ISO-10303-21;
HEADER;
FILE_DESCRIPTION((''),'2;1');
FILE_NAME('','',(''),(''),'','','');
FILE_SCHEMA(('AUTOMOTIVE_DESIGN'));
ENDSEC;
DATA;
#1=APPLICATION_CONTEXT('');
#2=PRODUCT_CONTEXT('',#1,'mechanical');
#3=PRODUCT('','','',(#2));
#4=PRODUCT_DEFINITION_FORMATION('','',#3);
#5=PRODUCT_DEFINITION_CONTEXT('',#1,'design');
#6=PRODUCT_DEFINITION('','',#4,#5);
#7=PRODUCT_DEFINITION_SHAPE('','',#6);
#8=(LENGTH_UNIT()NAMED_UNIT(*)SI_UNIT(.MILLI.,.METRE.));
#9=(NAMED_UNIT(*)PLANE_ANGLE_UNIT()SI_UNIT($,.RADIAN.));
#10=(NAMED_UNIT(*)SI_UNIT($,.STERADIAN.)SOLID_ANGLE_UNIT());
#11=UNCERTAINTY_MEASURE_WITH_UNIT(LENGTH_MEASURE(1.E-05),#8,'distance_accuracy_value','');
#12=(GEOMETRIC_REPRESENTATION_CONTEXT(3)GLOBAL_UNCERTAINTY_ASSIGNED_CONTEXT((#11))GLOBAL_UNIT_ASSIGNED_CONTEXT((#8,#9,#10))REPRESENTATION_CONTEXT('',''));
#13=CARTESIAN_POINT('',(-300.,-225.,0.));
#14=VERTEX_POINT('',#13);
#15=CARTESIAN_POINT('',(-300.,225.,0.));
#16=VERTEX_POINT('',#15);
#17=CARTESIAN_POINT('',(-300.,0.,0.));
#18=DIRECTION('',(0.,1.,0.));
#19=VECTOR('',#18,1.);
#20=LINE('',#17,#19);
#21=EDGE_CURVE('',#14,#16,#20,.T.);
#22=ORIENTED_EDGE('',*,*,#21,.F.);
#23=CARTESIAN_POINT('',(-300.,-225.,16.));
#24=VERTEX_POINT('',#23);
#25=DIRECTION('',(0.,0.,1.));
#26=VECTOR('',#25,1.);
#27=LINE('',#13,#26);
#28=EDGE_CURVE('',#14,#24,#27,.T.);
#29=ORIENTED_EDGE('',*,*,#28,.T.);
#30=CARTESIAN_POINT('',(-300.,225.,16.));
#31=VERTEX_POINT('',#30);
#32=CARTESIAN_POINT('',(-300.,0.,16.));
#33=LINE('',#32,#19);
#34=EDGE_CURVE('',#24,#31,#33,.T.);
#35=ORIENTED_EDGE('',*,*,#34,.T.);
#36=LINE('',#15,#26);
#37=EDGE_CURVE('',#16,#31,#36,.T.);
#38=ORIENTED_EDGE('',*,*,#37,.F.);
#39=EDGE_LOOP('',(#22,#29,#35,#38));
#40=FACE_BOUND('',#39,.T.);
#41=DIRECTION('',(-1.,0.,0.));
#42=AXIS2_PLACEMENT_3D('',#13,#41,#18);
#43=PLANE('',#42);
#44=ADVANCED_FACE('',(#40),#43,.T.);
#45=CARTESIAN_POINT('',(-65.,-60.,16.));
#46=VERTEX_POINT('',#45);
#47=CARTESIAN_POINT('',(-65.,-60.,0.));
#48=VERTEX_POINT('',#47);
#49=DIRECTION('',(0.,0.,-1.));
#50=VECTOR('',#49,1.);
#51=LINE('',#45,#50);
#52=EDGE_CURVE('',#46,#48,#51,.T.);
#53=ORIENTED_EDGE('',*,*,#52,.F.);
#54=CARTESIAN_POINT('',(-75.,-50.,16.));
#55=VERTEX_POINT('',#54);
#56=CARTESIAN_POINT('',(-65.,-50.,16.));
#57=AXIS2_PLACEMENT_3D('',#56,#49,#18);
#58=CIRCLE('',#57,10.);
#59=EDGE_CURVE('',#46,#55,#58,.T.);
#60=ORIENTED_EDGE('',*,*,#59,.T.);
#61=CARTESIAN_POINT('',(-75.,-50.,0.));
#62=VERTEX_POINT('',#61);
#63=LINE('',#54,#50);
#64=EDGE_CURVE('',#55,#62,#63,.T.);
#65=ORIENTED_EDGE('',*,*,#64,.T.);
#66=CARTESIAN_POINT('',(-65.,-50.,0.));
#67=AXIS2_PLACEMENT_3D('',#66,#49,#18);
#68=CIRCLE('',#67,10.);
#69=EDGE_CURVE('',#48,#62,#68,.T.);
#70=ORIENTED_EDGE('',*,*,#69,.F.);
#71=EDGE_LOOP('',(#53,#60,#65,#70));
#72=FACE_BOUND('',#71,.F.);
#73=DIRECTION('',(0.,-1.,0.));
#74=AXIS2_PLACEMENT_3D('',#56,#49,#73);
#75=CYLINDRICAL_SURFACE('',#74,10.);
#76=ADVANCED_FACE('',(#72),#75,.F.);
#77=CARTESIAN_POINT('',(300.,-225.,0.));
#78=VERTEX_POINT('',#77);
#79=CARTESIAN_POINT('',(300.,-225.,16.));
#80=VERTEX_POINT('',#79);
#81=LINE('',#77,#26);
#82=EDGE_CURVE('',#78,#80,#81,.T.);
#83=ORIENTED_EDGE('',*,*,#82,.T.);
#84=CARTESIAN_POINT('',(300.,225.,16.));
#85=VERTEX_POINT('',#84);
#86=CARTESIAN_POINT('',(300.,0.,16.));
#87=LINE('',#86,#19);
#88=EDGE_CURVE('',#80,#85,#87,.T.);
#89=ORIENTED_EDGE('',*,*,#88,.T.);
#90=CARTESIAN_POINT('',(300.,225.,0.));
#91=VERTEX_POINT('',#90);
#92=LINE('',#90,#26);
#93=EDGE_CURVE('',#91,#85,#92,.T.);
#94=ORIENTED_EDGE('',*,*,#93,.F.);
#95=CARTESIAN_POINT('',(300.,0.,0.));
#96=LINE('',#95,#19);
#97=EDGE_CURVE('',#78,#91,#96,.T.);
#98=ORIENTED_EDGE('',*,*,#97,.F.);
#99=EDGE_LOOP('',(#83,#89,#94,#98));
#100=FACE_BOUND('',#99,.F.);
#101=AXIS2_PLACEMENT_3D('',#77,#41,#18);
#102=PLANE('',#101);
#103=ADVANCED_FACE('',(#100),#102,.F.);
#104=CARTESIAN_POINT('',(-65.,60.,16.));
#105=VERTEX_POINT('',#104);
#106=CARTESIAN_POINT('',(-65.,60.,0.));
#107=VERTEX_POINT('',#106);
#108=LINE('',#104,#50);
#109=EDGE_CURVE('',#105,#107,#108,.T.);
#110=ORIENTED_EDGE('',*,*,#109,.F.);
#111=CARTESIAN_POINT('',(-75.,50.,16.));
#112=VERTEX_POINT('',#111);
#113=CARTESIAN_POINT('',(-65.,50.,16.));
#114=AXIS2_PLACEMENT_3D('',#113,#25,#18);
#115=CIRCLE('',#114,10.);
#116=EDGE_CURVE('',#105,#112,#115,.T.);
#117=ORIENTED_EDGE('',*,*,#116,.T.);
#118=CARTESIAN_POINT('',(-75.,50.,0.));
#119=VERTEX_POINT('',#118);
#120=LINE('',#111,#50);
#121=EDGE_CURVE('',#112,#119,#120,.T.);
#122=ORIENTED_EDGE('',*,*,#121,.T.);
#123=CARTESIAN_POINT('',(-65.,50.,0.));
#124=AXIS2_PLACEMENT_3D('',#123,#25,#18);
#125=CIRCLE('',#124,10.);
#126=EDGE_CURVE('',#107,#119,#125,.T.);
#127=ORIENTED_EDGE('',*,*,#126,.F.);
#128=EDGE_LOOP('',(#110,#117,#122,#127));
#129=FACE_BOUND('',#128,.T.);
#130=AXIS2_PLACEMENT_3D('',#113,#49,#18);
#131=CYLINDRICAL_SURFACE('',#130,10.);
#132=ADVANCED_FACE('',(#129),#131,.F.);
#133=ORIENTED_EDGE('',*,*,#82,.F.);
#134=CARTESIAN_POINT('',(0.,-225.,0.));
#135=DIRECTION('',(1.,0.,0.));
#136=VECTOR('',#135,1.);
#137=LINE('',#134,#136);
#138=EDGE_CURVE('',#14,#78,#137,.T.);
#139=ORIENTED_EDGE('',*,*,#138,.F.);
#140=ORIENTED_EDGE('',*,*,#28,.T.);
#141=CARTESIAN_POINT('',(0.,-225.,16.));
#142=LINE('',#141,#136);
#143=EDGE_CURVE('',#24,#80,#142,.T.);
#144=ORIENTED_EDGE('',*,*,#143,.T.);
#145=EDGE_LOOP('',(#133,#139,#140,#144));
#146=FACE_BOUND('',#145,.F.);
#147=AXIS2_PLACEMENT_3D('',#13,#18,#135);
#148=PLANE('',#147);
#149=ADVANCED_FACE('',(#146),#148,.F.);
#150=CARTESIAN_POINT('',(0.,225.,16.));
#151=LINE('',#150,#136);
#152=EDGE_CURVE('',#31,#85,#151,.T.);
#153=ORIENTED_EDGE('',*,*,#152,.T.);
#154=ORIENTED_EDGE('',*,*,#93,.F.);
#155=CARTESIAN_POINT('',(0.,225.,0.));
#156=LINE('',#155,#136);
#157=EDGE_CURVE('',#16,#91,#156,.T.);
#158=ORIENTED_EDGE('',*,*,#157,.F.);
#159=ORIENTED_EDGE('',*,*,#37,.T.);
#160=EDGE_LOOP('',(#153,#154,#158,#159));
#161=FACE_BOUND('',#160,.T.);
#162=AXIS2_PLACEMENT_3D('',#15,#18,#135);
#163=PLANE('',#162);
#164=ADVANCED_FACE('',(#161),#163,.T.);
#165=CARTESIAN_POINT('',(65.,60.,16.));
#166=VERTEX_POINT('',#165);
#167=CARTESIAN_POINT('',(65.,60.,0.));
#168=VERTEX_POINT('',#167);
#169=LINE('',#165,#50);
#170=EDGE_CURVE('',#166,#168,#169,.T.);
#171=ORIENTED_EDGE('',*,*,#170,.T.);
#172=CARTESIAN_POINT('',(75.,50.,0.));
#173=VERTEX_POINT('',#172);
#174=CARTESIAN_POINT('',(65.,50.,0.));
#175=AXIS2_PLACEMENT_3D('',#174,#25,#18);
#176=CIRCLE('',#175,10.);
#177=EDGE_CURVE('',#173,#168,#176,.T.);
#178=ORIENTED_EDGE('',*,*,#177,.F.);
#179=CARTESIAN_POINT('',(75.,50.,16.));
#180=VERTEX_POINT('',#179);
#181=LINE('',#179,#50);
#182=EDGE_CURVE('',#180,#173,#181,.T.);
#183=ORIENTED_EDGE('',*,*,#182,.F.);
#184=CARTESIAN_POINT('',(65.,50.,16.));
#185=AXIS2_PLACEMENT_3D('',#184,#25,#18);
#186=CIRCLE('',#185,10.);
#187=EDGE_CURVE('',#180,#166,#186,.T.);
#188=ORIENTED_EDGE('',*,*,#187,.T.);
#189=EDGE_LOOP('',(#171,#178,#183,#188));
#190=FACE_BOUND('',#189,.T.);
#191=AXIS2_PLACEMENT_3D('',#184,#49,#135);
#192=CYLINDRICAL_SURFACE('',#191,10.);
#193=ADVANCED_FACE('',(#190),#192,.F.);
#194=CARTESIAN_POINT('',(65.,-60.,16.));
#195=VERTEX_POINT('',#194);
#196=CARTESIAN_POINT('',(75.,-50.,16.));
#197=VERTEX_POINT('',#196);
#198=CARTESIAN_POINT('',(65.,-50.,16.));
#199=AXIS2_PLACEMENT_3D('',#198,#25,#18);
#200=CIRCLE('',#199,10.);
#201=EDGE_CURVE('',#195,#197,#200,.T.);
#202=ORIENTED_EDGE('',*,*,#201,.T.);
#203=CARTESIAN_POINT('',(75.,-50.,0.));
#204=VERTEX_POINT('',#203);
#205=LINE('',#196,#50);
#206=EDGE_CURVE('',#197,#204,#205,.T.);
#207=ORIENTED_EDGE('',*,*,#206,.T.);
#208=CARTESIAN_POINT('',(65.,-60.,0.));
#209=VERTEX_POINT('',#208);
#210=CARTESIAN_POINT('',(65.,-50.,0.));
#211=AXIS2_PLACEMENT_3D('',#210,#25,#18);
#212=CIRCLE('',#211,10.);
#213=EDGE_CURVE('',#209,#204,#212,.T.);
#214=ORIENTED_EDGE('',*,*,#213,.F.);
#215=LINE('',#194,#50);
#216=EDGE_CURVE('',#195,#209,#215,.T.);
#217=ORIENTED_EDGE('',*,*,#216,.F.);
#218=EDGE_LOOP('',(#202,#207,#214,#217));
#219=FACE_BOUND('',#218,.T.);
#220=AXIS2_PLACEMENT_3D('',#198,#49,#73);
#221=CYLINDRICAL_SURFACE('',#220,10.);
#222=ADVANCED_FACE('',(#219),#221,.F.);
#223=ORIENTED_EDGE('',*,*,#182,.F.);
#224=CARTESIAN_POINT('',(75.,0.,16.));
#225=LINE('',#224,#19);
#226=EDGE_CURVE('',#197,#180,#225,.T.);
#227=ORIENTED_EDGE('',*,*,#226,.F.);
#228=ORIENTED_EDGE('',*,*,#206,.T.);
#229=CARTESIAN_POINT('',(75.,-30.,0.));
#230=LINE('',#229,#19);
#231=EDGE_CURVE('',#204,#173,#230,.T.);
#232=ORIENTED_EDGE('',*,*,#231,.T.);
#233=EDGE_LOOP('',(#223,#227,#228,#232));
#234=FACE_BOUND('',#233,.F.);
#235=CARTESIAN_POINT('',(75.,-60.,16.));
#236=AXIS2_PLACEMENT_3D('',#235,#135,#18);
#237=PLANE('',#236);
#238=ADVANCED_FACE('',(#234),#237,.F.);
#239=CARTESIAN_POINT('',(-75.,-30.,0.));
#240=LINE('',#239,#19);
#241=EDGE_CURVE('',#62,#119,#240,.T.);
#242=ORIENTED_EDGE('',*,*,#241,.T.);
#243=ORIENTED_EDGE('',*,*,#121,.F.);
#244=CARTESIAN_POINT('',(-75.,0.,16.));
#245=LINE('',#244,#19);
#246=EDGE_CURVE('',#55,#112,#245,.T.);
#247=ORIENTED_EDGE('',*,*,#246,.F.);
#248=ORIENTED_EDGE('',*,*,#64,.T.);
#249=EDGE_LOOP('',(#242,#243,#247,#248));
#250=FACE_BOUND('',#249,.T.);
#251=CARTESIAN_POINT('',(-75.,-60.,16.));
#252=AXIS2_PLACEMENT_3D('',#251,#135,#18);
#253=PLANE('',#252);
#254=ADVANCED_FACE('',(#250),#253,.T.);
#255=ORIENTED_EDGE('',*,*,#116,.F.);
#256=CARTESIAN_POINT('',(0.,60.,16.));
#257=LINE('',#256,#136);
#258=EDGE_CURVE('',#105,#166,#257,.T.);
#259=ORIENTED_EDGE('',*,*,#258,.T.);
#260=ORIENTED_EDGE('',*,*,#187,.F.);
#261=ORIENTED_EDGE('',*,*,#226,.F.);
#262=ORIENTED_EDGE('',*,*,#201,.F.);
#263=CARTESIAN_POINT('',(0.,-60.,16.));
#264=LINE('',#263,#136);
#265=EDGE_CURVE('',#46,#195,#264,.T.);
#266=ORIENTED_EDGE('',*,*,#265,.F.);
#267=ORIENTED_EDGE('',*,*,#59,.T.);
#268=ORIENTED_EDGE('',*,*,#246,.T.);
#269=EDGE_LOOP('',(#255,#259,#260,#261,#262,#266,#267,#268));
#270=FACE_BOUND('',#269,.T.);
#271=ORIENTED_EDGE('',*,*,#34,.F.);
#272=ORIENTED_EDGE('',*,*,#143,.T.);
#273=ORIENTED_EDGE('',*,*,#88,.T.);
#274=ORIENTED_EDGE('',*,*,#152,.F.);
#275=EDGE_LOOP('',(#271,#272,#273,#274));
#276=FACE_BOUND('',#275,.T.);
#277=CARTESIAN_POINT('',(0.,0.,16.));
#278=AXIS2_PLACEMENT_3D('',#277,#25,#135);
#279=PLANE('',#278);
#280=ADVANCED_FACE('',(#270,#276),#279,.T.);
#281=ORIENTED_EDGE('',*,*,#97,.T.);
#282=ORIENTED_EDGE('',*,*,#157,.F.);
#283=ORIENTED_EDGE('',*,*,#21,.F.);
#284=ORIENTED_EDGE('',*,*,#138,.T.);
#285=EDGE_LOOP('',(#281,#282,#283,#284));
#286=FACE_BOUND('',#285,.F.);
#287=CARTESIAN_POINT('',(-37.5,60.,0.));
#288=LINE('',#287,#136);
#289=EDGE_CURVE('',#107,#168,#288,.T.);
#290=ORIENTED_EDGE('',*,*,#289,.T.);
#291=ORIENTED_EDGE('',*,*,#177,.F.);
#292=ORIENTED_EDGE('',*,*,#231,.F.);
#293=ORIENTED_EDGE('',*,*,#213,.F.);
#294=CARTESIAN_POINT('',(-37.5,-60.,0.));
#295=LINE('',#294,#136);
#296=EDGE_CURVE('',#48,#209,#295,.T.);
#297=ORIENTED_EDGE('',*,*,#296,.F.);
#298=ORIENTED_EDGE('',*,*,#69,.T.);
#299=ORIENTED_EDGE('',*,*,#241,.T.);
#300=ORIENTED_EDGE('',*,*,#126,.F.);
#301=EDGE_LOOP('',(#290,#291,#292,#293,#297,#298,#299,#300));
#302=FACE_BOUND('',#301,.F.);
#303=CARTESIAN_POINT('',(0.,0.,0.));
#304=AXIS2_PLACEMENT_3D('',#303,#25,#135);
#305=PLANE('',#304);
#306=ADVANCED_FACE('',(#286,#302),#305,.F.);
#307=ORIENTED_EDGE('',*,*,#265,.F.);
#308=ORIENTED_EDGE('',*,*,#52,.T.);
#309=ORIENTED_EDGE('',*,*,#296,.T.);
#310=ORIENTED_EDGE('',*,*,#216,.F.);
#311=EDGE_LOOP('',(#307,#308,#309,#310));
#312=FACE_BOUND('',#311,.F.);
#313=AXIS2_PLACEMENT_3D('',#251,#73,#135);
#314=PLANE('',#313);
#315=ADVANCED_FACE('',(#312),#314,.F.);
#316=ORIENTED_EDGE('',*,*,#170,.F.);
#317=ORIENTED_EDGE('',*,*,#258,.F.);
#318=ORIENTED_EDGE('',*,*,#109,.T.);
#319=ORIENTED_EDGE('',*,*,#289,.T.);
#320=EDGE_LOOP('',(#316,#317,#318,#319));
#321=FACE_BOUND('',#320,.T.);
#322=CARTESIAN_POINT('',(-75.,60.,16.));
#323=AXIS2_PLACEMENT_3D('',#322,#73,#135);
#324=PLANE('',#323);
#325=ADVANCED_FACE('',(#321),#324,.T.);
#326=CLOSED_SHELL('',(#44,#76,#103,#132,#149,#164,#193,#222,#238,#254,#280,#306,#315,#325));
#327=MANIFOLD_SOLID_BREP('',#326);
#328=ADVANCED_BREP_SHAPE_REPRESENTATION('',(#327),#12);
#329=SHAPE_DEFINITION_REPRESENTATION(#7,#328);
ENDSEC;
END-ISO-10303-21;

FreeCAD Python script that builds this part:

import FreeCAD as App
import Part
import Sketcher

V = App.Vector
Q = App.Units.Quantity


def edges_at(feature, points):
    """Names of the edges that pass closest to the given points."""
    edges = feature.Shape.Edges
    near = lambda p: min(range(len(edges)), key=lambda i: edges[i].distToShape(Part.Vertex(*p))[0])
    return sorted({f"Edge{near(p) + 1}" for p in points})

doc = App.newDocument("Part")
body = doc.addObject("PartDesign::Body", "Body")

# Sketch on XY plane
sketch1 = body.newObject("Sketcher::SketchObject", "Sketch")
sketch1.AttachmentSupport = (doc.getObject("XY_Plane"), [""])
sketch1.MapMode = "FlatFace"
sketch1.addGeometry([
    Part.LineSegment(V(-300, 225, 0), V(-300, -225, 0)),
    Part.LineSegment(V(-300, -225, 0), V(300, -225, 0)),
    Part.LineSegment(V(300, -225, 0), V(300, 225, 0)),
    Part.LineSegment(V(300, 225, 0), V(-300, 225, 0)),
], False)
sketch1.addConstraint([
    Sketcher.Constraint("Coincident", 0, 2, 1, 1),
    Sketcher.Constraint("Coincident", 1, 2, 2, 1),
    Sketcher.Constraint("Coincident", 2, 2, 3, 1),
    Sketcher.Constraint("Coincident", 3, 2, 0, 1),
    Sketcher.Constraint("Vertical", 0),
    Sketcher.Constraint("Horizontal", 1),
    Sketcher.Constraint("Vertical", 2),
    Sketcher.Constraint("Horizontal", 3),
    Sketcher.Constraint("Symmetric", 0, 2, 2, 2, -1, 1),
    Sketcher.Constraint("DistanceX", 1, 1, 1, 2, Q("600 mm")),
    Sketcher.Constraint("DistanceY", 0, 2, 0, 1, Q("450 mm")),
])
pad1 = body.newObject("PartDesign::Pad", "Pad")
pad1.Profile = sketch1
pad1.Length = 16

# Sketch on XY plane
sketch2 = body.newObject("Sketcher::SketchObject", "Sketch001")
sketch2.AttachmentSupport = (doc.getObject("XY_Plane"), [""])
sketch2.MapMode = "FlatFace"
sketch2.AttachmentOffset = App.Placement(V(0, 0, 16), App.Rotation())
sketch2.addGeometry([
    Part.LineSegment(V(-75, 60, 0), V(-75, -60, 0)),
    Part.LineSegment(V(-75, -60, 0), V(75, -60, 0)),
    Part.LineSegment(V(75, -60, 0), V(75, 60, 0)),
    Part.LineSegment(V(75, 60, 0), V(-75, 60, 0)),
], False)
sketch2.addConstraint([
    Sketcher.Constraint("Coincident", 0, 2, 1, 1),
    Sketcher.Constraint("Coincident", 1, 2, 2, 1),
    Sketcher.Constraint("Coincident", 2, 2, 3, 1),
    Sketcher.Constraint("Coincident", 3, 2, 0, 1),
    Sketcher.Constraint("Vertical", 0),
    Sketcher.Constraint("Horizontal", 1),
    Sketcher.Constraint("Vertical", 2),
    Sketcher.Constraint("Horizontal", 3),
    Sketcher.Constraint("Symmetric", 0, 2, 2, 2, -1, 1),
    Sketcher.Constraint("DistanceX", 1, 1, 1, 2, Q("150 mm")),
    Sketcher.Constraint("DistanceY", 0, 2, 0, 1, Q("120 mm")),
])
pocket1 = body.newObject("PartDesign::Pocket", "Pocket")
pocket1.Profile = sketch2
pocket1.Type = "ThroughAll"
doc.recompute()

fillet = body.newObject("PartDesign::Fillet", "Fillet")
fillet.Base = (pocket1, edges_at(pocket1, [
    (-75, 60, 8),
    (75, 60, 8),
    (75, -60, 8),
    (-75, -60, 8),
]))
fillet.Radius = 10

doc.recompute()
